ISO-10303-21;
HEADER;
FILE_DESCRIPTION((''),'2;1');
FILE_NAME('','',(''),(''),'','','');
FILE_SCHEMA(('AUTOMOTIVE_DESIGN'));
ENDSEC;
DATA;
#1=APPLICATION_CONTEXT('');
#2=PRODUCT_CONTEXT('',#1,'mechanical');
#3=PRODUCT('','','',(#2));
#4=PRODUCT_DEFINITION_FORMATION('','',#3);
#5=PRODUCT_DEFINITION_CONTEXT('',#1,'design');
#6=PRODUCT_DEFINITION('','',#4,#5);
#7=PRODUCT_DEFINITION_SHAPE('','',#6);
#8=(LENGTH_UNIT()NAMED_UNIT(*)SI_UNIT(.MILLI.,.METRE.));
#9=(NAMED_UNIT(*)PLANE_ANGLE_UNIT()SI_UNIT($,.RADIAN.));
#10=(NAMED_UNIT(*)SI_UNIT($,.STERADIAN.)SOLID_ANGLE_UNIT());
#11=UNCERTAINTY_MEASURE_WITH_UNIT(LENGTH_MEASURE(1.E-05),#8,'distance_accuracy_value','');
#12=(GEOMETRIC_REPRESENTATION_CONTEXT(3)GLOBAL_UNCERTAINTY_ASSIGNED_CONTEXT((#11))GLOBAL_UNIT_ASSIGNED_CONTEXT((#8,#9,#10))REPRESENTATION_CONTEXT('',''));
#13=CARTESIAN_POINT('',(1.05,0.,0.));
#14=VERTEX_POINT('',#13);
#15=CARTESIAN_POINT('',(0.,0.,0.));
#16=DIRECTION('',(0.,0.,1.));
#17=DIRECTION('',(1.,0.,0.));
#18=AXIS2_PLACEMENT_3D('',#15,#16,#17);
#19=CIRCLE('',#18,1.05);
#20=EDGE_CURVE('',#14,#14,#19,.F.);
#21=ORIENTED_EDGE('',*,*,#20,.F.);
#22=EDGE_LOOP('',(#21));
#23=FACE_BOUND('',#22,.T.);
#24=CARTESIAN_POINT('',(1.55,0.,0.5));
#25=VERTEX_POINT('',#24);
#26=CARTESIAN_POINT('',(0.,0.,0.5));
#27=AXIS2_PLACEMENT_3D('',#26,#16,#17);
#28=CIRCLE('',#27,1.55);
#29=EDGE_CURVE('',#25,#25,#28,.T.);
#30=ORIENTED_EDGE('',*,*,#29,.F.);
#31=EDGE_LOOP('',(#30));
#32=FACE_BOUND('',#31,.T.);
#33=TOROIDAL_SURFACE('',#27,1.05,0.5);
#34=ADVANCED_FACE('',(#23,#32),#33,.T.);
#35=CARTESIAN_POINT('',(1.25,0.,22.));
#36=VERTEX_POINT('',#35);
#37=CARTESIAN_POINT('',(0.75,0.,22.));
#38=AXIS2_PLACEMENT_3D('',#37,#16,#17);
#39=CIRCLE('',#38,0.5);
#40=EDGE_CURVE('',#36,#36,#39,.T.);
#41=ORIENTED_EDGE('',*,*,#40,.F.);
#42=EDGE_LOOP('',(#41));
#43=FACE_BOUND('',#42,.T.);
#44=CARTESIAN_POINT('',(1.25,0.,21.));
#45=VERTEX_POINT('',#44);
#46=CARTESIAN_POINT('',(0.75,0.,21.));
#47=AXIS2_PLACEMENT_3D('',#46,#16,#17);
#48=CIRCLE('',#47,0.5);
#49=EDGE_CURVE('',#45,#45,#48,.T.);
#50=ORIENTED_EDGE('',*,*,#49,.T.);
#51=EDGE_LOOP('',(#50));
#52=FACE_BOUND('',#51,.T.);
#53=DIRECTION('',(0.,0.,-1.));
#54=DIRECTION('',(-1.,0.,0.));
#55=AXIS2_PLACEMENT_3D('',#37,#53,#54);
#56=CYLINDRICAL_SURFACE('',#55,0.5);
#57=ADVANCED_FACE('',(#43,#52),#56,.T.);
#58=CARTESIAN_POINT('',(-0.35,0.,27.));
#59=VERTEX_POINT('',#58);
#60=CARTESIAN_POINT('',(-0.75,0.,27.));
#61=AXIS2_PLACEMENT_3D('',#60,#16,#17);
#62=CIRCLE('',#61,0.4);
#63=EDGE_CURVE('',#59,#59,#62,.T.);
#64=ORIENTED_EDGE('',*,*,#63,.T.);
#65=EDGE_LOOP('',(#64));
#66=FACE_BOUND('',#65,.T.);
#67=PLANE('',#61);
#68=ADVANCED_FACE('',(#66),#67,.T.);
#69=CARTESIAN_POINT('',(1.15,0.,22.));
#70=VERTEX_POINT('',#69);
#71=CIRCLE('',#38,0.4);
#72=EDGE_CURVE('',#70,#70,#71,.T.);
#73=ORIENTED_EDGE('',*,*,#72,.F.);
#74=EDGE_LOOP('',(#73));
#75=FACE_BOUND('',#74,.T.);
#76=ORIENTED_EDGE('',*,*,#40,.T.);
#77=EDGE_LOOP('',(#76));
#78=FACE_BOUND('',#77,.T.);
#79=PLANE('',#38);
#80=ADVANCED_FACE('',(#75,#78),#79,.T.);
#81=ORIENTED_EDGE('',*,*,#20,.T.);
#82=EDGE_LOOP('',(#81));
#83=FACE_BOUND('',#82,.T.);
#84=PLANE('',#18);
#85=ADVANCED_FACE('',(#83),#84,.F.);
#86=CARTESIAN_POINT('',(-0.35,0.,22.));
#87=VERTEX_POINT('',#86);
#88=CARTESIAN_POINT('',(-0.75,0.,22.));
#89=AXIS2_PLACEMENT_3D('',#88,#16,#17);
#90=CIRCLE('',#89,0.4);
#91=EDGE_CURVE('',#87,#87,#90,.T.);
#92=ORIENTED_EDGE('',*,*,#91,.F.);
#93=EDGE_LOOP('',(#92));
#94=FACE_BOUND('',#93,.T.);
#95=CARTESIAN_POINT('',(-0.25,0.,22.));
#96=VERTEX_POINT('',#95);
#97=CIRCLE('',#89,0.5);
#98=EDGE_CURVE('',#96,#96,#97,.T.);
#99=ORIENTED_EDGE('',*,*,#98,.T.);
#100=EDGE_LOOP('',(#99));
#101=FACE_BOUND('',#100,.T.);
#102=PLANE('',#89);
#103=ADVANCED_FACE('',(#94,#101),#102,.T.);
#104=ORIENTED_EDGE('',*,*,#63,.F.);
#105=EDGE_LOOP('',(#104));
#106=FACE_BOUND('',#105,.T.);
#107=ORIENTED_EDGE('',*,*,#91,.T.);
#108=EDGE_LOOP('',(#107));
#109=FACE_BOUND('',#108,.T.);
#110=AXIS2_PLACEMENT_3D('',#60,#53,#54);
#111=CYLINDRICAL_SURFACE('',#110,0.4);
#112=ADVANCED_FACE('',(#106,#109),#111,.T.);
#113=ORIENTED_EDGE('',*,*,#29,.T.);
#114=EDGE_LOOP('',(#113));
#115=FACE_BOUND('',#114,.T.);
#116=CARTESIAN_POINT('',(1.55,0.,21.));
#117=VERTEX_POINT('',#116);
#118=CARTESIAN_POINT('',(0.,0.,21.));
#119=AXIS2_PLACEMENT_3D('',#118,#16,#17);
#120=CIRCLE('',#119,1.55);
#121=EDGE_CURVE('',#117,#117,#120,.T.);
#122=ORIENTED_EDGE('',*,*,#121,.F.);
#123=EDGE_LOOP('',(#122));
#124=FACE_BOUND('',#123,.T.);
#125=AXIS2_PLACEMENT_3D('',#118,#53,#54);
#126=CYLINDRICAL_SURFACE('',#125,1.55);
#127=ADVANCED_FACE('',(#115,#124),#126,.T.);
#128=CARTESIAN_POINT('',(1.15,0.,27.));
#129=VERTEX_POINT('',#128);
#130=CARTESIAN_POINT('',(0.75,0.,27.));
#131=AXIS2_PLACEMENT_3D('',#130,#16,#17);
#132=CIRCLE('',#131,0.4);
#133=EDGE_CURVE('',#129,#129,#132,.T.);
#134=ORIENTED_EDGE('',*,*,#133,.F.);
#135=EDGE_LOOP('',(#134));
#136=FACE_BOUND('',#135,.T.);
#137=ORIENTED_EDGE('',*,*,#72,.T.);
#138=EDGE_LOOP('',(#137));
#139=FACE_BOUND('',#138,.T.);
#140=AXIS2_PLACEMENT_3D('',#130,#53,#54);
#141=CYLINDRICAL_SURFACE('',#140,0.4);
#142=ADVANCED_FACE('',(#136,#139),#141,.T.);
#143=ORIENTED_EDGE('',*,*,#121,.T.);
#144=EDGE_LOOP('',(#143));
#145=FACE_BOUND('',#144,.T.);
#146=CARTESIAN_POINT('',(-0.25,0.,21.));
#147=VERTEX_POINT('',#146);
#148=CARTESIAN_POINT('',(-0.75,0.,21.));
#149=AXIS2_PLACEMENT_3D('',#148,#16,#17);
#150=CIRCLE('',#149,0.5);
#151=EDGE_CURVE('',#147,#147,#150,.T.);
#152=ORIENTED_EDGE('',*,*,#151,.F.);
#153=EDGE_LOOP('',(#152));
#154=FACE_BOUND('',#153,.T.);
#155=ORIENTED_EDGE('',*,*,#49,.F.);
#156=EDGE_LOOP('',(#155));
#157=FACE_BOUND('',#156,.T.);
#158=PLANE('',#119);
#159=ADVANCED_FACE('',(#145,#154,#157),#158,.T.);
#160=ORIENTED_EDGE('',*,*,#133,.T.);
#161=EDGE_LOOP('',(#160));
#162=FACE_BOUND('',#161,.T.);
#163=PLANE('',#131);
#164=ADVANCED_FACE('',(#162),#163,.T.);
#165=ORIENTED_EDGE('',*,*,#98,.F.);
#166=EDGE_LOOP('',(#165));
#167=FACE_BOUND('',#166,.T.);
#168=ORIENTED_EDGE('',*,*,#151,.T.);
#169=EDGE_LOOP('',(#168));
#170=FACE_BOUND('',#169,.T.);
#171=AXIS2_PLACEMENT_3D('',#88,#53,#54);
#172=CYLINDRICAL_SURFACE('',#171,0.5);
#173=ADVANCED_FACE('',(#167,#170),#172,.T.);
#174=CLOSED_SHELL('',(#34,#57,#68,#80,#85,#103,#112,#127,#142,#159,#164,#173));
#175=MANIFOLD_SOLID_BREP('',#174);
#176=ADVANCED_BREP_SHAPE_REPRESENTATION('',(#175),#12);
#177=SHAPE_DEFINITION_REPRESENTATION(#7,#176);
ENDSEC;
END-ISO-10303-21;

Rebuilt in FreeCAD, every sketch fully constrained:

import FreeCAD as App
import Part
import Sketcher
from FreeCAD import Vector
Q = App.Units.Quantity


def edges_at(feature, points):
    """Names of the edges that pass closest to the given points."""
    edges = feature.Shape.Edges
    near = lambda p: min(range(len(edges)), key=lambda i: edges[i].distToShape(Part.Vertex(*p))[0])
    return sorted({f"Edge{near(p) + 1}" for p in points})

doc = App.newDocument("Part")
body = doc.addObject("PartDesign::Body", "Body")

# Sketch on XY plane
sketch1 = body.newObject("Sketcher::SketchObject", "Sketch")
sketch1.AttachmentSupport = (doc.getObject("XY_Plane"), [""])
sketch1.MapMode = "FlatFace"
sketch1.addGeometry(Part.Circle(Vector(0, 0, 0), Vector(0, 0, 1), 1.55), False)
sketch1.addConstraint([
    Sketcher.Constraint("Coincident", 0, 3, -1, 1),
    Sketcher.Constraint("Diameter", 0, Q("3.1 mm")),
])
pad1 = body.newObject("PartDesign::Pad", "Pad")
pad1.Profile = sketch1
pad1.Length = 21

# Sketch on XY plane
sketch2 = body.newObject("Sketcher::SketchObject", "Sketch001")
sketch2.AttachmentSupport = (doc.getObject("XY_Plane"), [""])
sketch2.MapMode = "FlatFace"
sketch2.AttachmentOffset = App.Placement(Vector(0, 0, 21), App.Rotation())
sketch2.addGeometry([
    Part.Circle(Vector(0.75, 0, 0), Vector(0, 0, 1), 0.4),
    Part.Circle(Vector(-0.75, 0, 0), Vector(0, 0, 1), 0.4),
], False)
sketch2.addConstraint([
    Sketcher.Constraint("Equal", 0, 1),
    Sketcher.Constraint("Symmetric", 0, 3, 1, 3, -1, 1),
    Sketcher.Constraint("PointOnObject", 0, 3, -1),
    Sketcher.Constraint("Diameter", 0, Q("0.8 mm")),
    Sketcher.Constraint("DistanceX", 1, 3, 0, 3, Q("1.5 mm")),
])
pad2 = body.newObject("PartDesign::Pad", "Pad001")
pad2.Profile = sketch2
pad2.Length = 6

# Sketch on XY plane
sketch3 = body.newObject("Sketcher::SketchObject", "Sketch002")
sketch3.AttachmentSupport = (doc.getObject("XY_Plane"), [""])
sketch3.MapMode = "FlatFace"
sketch3.AttachmentOffset = App.Placement(Vector(0, 0, 21), App.Rotation())
sketch3.addGeometry([
    Part.Circle(Vector(-0.75, 0, 0), Vector(0, 0, 1), 0.5),
    Part.Circle(Vector(-0.75, 0, 0), Vector(0, 0, 1), 0.4),
    Part.Circle(Vector(0.75, 0, 0), Vector(0, 0, 1), 0.5),
    Part.Circle(Vector(0.75, 0, 0), Vector(0, 0, 1), 0.4),
], False)
sketch3.addConstraint([
    Sketcher.Constraint("Coincident", 1, 3, 0, 3),
    Sketcher.Constraint("Coincident", 3, 3, 2, 3),
    Sketcher.Constraint("Equal", 0, 2),
    Sketcher.Constraint("Equal", 1, 3),
    Sketcher.Constraint("Symmetric", 0, 3, 2, 3, -1, 1),
    Sketcher.Constraint("PointOnObject", 0, 3, -1),
    Sketcher.Constraint("Diameter", 0, Q("1 mm")),
    Sketcher.Constraint("Diameter", 1, Q("0.8 mm")),
    Sketcher.Constraint("DistanceX", 0, 3, 2, 3, Q("1.5 mm")),
])
pad3 = body.newObject("PartDesign::Pad", "Pad002")
pad3.Profile = sketch3
pad3.Length = 1
doc.recompute()

fillet = body.newObject("PartDesign::Fillet", "Fillet")
fillet.Base = (pad3, edges_at(pad3, [(-1.55, 0, 0)]))
fillet.Radius = 0.5

doc.recompute()
